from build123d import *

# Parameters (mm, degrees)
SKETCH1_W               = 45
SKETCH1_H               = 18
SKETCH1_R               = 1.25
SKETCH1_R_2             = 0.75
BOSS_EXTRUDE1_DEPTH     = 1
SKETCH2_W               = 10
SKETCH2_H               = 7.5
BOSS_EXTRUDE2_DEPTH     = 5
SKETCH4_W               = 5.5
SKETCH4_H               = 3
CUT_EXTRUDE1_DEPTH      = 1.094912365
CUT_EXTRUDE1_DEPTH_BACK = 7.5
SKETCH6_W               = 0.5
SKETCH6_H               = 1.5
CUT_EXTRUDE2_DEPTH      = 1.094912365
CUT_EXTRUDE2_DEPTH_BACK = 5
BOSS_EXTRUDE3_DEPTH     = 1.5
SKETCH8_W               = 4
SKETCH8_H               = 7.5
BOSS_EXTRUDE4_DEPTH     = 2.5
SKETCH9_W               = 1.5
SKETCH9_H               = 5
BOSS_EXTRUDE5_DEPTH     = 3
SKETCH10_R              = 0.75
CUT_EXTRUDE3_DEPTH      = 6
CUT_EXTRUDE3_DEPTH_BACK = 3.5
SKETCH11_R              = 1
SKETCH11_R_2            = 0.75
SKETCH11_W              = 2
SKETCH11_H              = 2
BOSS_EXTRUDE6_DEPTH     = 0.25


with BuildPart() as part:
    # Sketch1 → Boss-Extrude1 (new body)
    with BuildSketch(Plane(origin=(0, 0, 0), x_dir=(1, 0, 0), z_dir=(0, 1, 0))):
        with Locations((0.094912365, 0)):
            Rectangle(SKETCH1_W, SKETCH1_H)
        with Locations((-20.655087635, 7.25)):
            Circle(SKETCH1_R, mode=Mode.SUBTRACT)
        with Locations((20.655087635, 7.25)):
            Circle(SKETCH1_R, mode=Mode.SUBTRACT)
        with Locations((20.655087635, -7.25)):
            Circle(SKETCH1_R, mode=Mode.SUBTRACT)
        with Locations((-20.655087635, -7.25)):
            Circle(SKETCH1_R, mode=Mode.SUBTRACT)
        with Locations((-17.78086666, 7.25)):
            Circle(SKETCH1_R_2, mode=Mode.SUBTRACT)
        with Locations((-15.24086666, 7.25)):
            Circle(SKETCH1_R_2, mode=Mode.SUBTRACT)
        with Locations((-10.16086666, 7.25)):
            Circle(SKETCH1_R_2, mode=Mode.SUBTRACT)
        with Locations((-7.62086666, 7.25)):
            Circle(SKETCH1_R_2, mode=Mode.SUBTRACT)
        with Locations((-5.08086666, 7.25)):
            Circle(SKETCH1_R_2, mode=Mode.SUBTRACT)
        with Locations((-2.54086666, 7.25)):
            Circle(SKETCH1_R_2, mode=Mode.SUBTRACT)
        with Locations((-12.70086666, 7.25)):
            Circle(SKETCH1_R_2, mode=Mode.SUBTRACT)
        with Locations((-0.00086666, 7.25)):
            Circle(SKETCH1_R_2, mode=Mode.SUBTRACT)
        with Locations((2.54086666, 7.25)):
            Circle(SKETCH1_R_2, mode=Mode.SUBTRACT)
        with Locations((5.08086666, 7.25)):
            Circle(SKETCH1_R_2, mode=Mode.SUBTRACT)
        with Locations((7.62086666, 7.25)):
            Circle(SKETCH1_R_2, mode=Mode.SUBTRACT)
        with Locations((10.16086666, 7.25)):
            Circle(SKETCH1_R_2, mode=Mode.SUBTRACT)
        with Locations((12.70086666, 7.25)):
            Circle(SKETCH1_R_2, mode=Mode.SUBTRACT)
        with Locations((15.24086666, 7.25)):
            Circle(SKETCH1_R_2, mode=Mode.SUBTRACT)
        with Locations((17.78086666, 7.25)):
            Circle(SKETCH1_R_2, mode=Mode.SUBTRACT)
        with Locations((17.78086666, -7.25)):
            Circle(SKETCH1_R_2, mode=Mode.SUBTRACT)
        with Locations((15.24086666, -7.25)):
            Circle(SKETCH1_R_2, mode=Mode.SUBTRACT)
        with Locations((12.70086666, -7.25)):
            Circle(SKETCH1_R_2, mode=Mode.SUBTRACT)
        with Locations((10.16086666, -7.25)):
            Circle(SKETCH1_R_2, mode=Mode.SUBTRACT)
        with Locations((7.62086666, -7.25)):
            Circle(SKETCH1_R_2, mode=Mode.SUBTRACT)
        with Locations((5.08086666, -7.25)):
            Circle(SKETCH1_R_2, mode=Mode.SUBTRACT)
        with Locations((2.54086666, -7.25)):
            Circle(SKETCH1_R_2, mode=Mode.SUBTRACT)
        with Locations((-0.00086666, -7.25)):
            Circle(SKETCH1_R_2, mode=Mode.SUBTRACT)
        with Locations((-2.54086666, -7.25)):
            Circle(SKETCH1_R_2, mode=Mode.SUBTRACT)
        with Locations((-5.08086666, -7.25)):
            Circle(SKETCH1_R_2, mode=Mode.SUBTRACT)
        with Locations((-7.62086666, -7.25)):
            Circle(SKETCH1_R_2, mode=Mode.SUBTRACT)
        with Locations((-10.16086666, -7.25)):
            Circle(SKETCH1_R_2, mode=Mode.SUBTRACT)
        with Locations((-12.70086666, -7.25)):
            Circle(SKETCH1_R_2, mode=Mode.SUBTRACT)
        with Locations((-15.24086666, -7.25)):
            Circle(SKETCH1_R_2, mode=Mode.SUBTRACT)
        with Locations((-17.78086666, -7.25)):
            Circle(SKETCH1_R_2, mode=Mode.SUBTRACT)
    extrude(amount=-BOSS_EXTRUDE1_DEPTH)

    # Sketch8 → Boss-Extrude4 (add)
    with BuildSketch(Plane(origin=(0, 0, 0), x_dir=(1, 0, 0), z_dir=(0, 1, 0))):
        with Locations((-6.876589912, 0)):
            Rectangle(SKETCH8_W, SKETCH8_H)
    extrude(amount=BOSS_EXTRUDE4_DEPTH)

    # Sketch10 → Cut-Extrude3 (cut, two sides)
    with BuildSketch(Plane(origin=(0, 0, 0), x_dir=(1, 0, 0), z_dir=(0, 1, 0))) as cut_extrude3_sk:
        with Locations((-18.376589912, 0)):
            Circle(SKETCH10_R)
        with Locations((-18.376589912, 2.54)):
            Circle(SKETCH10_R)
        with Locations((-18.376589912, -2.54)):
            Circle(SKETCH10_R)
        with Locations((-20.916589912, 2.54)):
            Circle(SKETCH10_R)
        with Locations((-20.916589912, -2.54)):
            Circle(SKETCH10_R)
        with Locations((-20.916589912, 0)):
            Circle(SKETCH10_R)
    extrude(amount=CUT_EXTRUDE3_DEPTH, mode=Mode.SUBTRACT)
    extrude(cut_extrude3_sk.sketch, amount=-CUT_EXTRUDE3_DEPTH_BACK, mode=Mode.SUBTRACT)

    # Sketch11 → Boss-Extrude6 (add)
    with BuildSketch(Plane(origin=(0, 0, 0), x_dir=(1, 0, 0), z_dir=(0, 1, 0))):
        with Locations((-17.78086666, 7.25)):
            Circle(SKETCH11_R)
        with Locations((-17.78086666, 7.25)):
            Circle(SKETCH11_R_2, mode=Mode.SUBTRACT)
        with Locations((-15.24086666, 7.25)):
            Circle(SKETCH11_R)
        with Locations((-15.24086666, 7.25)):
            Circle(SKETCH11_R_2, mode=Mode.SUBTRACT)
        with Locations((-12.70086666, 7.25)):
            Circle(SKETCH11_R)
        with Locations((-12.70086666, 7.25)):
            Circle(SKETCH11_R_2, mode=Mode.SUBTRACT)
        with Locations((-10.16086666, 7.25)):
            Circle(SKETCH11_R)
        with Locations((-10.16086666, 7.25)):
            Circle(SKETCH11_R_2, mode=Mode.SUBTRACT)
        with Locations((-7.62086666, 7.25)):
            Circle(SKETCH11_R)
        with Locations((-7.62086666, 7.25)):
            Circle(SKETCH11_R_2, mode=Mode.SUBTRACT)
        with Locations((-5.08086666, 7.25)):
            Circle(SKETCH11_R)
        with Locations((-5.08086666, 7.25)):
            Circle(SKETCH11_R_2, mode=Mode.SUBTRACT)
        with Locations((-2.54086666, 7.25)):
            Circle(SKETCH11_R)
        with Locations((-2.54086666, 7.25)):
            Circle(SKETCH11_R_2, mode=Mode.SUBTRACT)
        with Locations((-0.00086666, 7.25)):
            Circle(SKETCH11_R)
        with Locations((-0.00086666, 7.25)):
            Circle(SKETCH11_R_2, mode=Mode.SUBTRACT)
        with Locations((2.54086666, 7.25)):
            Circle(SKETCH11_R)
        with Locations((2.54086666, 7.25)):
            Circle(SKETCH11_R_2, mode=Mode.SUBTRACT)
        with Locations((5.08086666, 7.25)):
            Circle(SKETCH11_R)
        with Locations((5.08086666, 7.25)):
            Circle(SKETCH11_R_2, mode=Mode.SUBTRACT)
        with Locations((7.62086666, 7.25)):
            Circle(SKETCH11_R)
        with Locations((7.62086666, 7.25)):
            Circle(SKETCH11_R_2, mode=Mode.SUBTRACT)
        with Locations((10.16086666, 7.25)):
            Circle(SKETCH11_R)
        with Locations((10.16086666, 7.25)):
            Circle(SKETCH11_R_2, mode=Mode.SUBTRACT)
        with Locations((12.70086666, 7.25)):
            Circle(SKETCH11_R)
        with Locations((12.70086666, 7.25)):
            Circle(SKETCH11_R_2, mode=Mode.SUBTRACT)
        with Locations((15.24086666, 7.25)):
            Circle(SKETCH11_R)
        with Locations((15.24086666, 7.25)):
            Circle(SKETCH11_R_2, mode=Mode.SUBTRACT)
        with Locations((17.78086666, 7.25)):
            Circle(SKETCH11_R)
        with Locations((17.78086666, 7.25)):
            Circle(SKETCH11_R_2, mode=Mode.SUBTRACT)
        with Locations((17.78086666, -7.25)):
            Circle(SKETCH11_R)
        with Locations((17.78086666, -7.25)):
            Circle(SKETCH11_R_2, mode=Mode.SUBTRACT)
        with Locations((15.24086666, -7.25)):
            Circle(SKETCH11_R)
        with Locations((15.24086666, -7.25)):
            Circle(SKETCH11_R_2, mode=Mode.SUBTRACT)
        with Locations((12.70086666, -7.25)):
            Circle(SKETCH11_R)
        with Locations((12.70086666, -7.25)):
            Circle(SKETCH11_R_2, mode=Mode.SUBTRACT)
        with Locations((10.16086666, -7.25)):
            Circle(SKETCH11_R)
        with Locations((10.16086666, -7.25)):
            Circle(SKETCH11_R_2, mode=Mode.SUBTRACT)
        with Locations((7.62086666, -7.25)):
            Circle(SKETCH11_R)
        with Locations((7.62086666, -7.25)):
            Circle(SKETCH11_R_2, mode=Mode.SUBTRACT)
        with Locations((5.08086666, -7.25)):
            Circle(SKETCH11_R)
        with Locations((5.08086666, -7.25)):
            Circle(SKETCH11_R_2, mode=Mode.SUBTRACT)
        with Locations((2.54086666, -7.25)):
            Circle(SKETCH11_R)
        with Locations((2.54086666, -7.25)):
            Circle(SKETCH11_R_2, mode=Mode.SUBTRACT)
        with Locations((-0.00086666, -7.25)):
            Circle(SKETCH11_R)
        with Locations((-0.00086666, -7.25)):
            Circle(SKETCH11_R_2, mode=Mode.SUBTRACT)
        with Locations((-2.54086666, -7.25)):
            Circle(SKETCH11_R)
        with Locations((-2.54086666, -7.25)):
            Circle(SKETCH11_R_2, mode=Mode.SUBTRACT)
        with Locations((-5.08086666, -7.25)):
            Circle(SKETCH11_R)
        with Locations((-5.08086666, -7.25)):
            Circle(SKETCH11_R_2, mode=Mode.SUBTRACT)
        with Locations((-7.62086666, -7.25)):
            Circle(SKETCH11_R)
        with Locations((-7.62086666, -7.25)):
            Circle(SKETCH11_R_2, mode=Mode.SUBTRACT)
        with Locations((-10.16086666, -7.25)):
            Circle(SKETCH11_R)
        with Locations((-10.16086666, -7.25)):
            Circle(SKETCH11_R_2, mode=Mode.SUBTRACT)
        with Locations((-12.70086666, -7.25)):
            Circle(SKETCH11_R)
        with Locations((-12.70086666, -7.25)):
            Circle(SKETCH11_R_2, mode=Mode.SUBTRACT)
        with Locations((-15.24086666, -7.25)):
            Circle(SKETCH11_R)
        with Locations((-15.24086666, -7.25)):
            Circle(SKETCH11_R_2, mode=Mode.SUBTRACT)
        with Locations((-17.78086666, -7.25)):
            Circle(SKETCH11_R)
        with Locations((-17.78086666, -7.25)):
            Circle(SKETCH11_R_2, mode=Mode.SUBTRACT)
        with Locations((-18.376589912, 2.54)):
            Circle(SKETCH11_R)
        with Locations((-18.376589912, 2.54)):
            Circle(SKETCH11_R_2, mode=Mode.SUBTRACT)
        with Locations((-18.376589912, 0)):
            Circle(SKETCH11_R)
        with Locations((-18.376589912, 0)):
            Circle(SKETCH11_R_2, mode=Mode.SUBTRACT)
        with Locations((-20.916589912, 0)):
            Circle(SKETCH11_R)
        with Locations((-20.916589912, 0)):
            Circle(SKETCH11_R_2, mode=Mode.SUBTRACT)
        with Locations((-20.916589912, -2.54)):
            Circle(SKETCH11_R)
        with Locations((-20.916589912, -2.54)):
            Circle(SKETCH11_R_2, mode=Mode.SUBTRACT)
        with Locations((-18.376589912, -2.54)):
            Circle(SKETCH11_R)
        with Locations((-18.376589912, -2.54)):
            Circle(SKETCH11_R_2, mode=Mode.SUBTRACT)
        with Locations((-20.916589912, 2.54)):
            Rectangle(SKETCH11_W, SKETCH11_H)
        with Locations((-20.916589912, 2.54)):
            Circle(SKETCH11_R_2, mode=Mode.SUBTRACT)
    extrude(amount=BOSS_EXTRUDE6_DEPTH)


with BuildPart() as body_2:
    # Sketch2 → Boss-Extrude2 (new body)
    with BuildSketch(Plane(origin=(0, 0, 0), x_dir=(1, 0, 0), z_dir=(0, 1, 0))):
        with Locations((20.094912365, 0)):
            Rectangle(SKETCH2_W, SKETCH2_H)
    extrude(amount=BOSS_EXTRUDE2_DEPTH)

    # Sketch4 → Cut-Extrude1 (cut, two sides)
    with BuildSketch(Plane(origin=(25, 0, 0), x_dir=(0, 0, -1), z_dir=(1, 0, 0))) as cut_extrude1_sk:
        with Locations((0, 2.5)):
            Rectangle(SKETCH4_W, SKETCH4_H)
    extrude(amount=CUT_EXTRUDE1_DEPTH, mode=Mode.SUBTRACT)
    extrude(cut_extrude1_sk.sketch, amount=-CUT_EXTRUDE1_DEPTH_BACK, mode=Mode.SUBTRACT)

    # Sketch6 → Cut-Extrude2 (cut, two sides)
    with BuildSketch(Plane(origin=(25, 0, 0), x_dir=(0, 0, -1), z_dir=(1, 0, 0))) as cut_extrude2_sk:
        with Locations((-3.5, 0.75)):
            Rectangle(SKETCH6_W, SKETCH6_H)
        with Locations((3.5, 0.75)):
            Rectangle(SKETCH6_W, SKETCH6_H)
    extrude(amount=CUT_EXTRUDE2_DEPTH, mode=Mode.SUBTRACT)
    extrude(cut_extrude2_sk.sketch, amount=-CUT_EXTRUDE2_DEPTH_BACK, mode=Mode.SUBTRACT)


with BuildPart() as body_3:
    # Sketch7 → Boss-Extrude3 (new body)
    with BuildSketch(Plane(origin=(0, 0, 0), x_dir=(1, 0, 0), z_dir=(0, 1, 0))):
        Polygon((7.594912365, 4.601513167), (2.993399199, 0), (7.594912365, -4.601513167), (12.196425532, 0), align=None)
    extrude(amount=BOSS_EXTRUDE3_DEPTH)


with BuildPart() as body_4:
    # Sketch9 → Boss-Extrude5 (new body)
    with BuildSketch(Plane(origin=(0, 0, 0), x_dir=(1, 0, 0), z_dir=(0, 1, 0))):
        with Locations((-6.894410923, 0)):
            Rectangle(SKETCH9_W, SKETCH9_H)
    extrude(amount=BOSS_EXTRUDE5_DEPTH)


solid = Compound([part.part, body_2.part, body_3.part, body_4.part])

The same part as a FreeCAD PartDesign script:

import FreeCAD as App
import Part
import Sketcher


def add_polygon(sketch, points):
    """Adds a closed chain of lines whose ends are joined by coincident constraints."""
    first, n = sketch.GeometryCount, len(points)
    for a, b in zip(points, points[1:] + points[:1]):
        sketch.addGeometry(Part.LineSegment(App.Vector(*a, 0), App.Vector(*b, 0)), False)
    for i in range(n):
        sketch.addConstraint(Sketcher.Constraint("Coincident", first + i, 2, first + (i + 1) % n, 1))

doc = App.newDocument("Part")
body = doc.addObject("PartDesign::Body", "Body")

sketch1 = body.newObject("Sketcher::SketchObject", "Sketch")
sketch1.AttachmentSupport = (doc.getObject("XZ_Plane"), [""])
sketch1.MapMode = "FlatFace"
add_polygon(sketch1, [(-22.405088, -9), (-22.405088, 9), (22.594912, 9), (22.594912, -9)])
sketch1.addGeometry(Part.Circle(App.Vector(-20.655088, 7.25, 0), App.Vector(0, 0, 1), 1.25), False)
sketch1.addGeometry(Part.Circle(App.Vector(-17.780867, 7.25, 0), App.Vector(0, 0, 1), 0.75), False)
sketch1.addGeometry(Part.Circle(App.Vector(-15.240867, 7.25, 0), App.Vector(0, 0, 1), 0.75), False)
sketch1.addGeometry(Part.Circle(App.Vector(-12.700867, 7.25, 0), App.Vector(0, 0, 1), 0.75), False)
sketch1.addGeometry(Part.Circle(App.Vector(-10.160867, 7.25, 0), App.Vector(0, 0, 1), 0.75), False)
sketch1.addGeometry(Part.Circle(App.Vector(-7.620867, 7.25, 0), App.Vector(0, 0, 1), 0.75), False)
sketch1.addGeometry(Part.Circle(App.Vector(-5.080867, 7.25, 0), App.Vector(0, 0, 1), 0.75), False)
sketch1.addGeometry(Part.Circle(App.Vector(-2.540867, 7.25, 0), App.Vector(0, 0, 1), 0.75), False)
sketch1.addGeometry(Part.Circle(App.Vector(-0.000867, 7.25, 0), App.Vector(0, 0, 1), 0.75), False)
sketch1.addGeometry(Part.Circle(App.Vector(2.540867, 7.25, 0), App.Vector(0, 0, 1), 0.75), False)
sketch1.addGeometry(Part.Circle(App.Vector(5.080867, 7.25, 0), App.Vector(0, 0, 1), 0.75), False)
sketch1.addGeometry(Part.Circle(App.Vector(7.620867, 7.25, 0), App.Vector(0, 0, 1), 0.75), False)
sketch1.addGeometry(Part.Circle(App.Vector(10.160867, 7.25, 0), App.Vector(0, 0, 1), 0.75), False)
sketch1.addGeometry(Part.Circle(App.Vector(12.700867, 7.25, 0), App.Vector(0, 0, 1), 0.75), False)
sketch1.addGeometry(Part.Circle(App.Vector(15.240867, 7.25, 0), App.Vector(0, 0, 1), 0.75), False)
sketch1.addGeometry(Part.Circle(App.Vector(17.780867, 7.25, 0), App.Vector(0, 0, 1), 0.75), False)
sketch1.addGeometry(Part.Circle(App.Vector(20.655088, 7.25, 0), App.Vector(0, 0, 1), 1.25), False)
sketch1.addGeometry(Part.Circle(App.Vector(-20.655088, -7.25, 0), App.Vector(0, 0, 1), 1.25), False)
sketch1.addGeometry(Part.Circle(App.Vector(-17.780867, -7.25, 0), App.Vector(0, 0, 1), 0.75), False)
sketch1.addGeometry(Part.Circle(App.Vector(-15.240867, -7.25, 0), App.Vector(0, 0, 1), 0.75), False)
sketch1.addGeometry(Part.Circle(App.Vector(-12.700867, -7.25, 0), App.Vector(0, 0, 1), 0.75), False)
sketch1.addGeometry(Part.Circle(App.Vector(-10.160867, -7.25, 0), App.Vector(0, 0, 1), 0.75), False)
sketch1.addGeometry(Part.Circle(App.Vector(-7.620867, -7.25, 0), App.Vector(0, 0, 1), 0.75), False)
sketch1.addGeometry(Part.Circle(App.Vector(-5.080867, -7.25, 0), App.Vector(0, 0, 1), 0.75), False)
sketch1.addGeometry(Part.Circle(App.Vector(-2.540867, -7.25, 0), App.Vector(0, 0, 1), 0.75), False)
sketch1.addGeometry(Part.Circle(App.Vector(-0.000867, -7.25, 0), App.Vector(0, 0, 1), 0.75), False)
sketch1.addGeometry(Part.Circle(App.Vector(2.540867, -7.25, 0), App.Vector(0, 0, 1), 0.75), False)
sketch1.addGeometry(Part.Circle(App.Vector(5.080867, -7.25, 0), App.Vector(0, 0, 1), 0.75), False)
sketch1.addGeometry(Part.Circle(App.Vector(7.620867, -7.25, 0), App.Vector(0, 0, 1), 0.75), False)
sketch1.addGeometry(Part.Circle(App.Vector(10.160867, -7.25, 0), App.Vector(0, 0, 1), 0.75), False)
sketch1.addGeometry(Part.Circle(App.Vector(12.700867, -7.25, 0), App.Vector(0, 0, 1), 0.75), False)
sketch1.addGeometry(Part.Circle(App.Vector(15.240867, -7.25, 0), App.Vector(0, 0, 1), 0.75), False)
sketch1.addGeometry(Part.Circle(App.Vector(17.780867, -7.25, 0), App.Vector(0, 0, 1), 0.75), False)
sketch1.addGeometry(Part.Circle(App.Vector(20.655088, -7.25, 0), App.Vector(0, 0, 1), 1.25), False)
sketch1.addConstraint(Sketcher.Constraint("Vertical", 0))
sketch1.addConstraint(Sketcher.Constraint("Horizontal", 1))
sketch1.addConstraint(Sketcher.Constraint("Vertical", 2))
sketch1.addConstraint(Sketcher.Constraint("Horizontal", 3))
sketch1.addConstraint(Sketcher.Constraint("Equal", 5, 6))
sketch1.addConstraint(Sketcher.Constraint("Equal", 6, 7))
sketch1.addConstraint(Sketcher.Constraint("Equal", 7, 8))
sketch1.addConstraint(Sketcher.Constraint("Equal", 8, 9))
sketch1.addConstraint(Sketcher.Constraint("Equal", 9, 10))
sketch1.addConstraint(Sketcher.Constraint("Equal", 10, 11))
sketch1.addConstraint(Sketcher.Constraint("Equal", 11, 12))
sketch1.addConstraint(Sketcher.Constraint("Equal", 12, 13))
sketch1.addConstraint(Sketcher.Constraint("Equal", 13, 14))
sketch1.addConstraint(Sketcher.Constraint("Equal", 14, 15))
sketch1.addConstraint(Sketcher.Constraint("Equal", 15, 16))
sketch1.addConstraint(Sketcher.Constraint("Equal", 16, 17))
sketch1.addConstraint(Sketcher.Constraint("Equal", 17, 18))
sketch1.addConstraint(Sketcher.Constraint("Equal", 18, 19))
sketch1.addConstraint(Sketcher.Constraint("Equal", 4, 20))
sketch1.addConstraint(Sketcher.Constraint("Equal", 20, 21))
sketch1.addConstraint(Sketcher.Constraint("Equal", 19, 22))
sketch1.addConstraint(Sketcher.Constraint("Equal", 22, 23))
sketch1.addConstraint(Sketcher.Constraint("Equal", 23, 24))
sketch1.addConstraint(Sketcher.Constraint("Equal", 24, 25))
sketch1.addConstraint(Sketcher.Constraint("Equal", 25, 26))
sketch1.addConstraint(Sketcher.Constraint("Equal", 26, 27))
sketch1.addConstraint(Sketcher.Constraint("Equal", 27, 28))
sketch1.addConstraint(Sketcher.Constraint("Equal", 28, 29))
sketch1.addConstraint(Sketcher.Constraint("Equal", 29, 30))
sketch1.addConstraint(Sketcher.Constraint("Equal", 30, 31))
sketch1.addConstraint(Sketcher.Constraint("Equal", 31, 32))
sketch1.addConstraint(Sketcher.Constraint("Equal", 32, 33))
sketch1.addConstraint(Sketcher.Constraint("Equal", 33, 34))
sketch1.addConstraint(Sketcher.Constraint("Equal", 34, 35))
sketch1.addConstraint(Sketcher.Constraint("Equal", 35, 36))
sketch1.addConstraint(Sketcher.Constraint("Equal", 21, 37))
sketch1.addConstraint(Sketcher.Constraint("Symmetric", 20, 3, 21, 3, -1, 1))
sketch1.addConstraint(Sketcher.Constraint("Symmetric", 19, 3, 22, 3, -1, 1))
sketch1.addConstraint(Sketcher.Constraint("Symmetric", 18, 3, 23, 3, -1, 1))
sketch1.addConstraint(Sketcher.Constraint("Symmetric", 17, 3, 24, 3, -1, 1))
sketch1.addConstraint(Sketcher.Constraint("Symmetric", 16, 3, 25, 3, -1, 1))
sketch1.addConstraint(Sketcher.Constraint("Symmetric", 15, 3, 26, 3, -1, 1))
sketch1.addConstraint(Sketcher.Constraint("Symmetric", 14, 3, 27, 3, -1, 1))
sketch1.addConstraint(Sketcher.Constraint("Symmetric", 13, 3, 28, 3, -1, 1))
sketch1.addConstraint(Sketcher.Constraint("Symmetric", 11, 3, 30, 3, -1, 1))
sketch1.addConstraint(Sketcher.Constraint("Symmetric", 10, 3, 31, 3, -1, 1))
sketch1.addConstraint(Sketcher.Constraint("Symmetric", 9, 3, 32, 3, -1, 1))
sketch1.addConstraint(Sketcher.Constraint("Symmetric", 8, 3, 33, 3, -1, 1))
sketch1.addConstraint(Sketcher.Constraint("Symmetric", 7, 3, 34, 3, -1, 1))
sketch1.addConstraint(Sketcher.Constraint("Symmetric", 6, 3, 35, 3, -1, 1))
sketch1.addConstraint(Sketcher.Constraint("Symmetric", 5, 3, 36, 3, -1, 1))
sketch1.addConstraint(Sketcher.Constraint("Symmetric", 4, 3, 37, 3, -1, 1))
sketch1.addConstraint(Sketcher.Constraint("Symmetric", 11, 3, 13, 3, -2))
sketch1.addConstraint(Sketcher.Constraint("Symmetric", 10, 3, 14, 3, -2))
sketch1.addConstraint(Sketcher.Constraint("Symmetric", 9, 3, 15, 3, -2))
sketch1.addConstraint(Sketcher.Constraint("Symmetric", 8, 3, 16, 3, -2))
sketch1.addConstraint(Sketcher.Constraint("Symmetric", 7, 3, 17, 3, -2))
sketch1.addConstraint(Sketcher.Constraint("Symmetric", 6, 3, 18, 3, -2))
sketch1.addConstraint(Sketcher.Constraint("Symmetric", 5, 3, 19, 3, -2))
sketch1.addConstraint(Sketcher.Constraint("Symmetric", 4, 3, 20, 3, -2))
sketch1.addConstraint(Sketcher.Constraint("Symmetric", 12, 3, 29, 3, -1))
sketch1.addConstraint(Sketcher.Constraint("Horizontal", 4, 3, 5, 3))
sketch1.addConstraint(Sketcher.Constraint("Horizontal", 5, 3, 6, 3))
sketch1.addConstraint(Sketcher.Constraint("Horizontal", 6, 3, 7, 3))
sketch1.addConstraint(Sketcher.Constraint("Horizontal", 7, 3, 8, 3))
sketch1.addConstraint(Sketcher.Constraint("Horizontal", 8, 3, 9, 3))
sketch1.addConstraint(Sketcher.Constraint("Horizontal", 9, 3, 10, 3))
sketch1.addConstraint(Sketcher.Constraint("Horizontal", 10, 3, 11, 3))
sketch1.addConstraint(Sketcher.Constraint("Horizontal", 11, 3, 12, 3))
sketch1.addConstraint(Sketcher.Constraint("Diameter", 4, 2.5))
sketch1.addConstraint(Sketcher.Constraint("Diameter", 5, 1.5))
sketch1.addConstraint(Sketcher.Constraint("DistanceX", 1, 1, 1, 2, 45.0))
sketch1.addConstraint(Sketcher.Constraint("DistanceY", 0, 1, 0, 2, 18.0))
sketch1.addConstraint(Sketcher.Constraint("DistanceY", -1, 1, 0, 2, 9.0))
sketch1.addConstraint(Sketcher.Constraint("DistanceX", 5, 3, 10, 3, 12.7))
sketch1.addConstraint(Sketcher.Constraint("DistanceX", 6, 3, 11, 3, 12.7))
sketch1.addConstraint(Sketcher.Constraint("DistanceX", 7, 3, 12, 3, 12.7))
sketch1.addConstraint(Sketcher.Constraint("DistanceY", 21, 3, 4, 3, 14.5))
sketch1.addConstraint(Sketcher.Constraint("DistanceX", 5, 3, 6, 3, 2.54))
sketch1.addConstraint(Sketcher.Constraint("DistanceX", 6, 3, 7, 3, 2.54))
sketch1.addConstraint(Sketcher.Constraint("DistanceX", 7, 3, 8, 3, 2.54))
sketch1.addConstraint(Sketcher.Constraint("DistanceX", 8, 3, 9, 3, 2.54))
sketch1.addConstraint(Sketcher.Constraint("DistanceX", 0, 2, 4, 3, 1.75))
sketch1.addConstraint(Sketcher.Constraint("DistanceX", 4, 3, 5, 3, 2.874221))
sketch1.addConstraint(Sketcher.Constraint("DistanceX", 4, 3, -1, 1, 20.655088))
pad1 = body.newObject("PartDesign::Pad", "Pad")
pad1.Profile = sketch1
pad1.Length = 1

sketch2 = body.newObject("Sketcher::SketchObject", "Sketch001")
sketch2.AttachmentSupport = (doc.getObject("XZ_Plane"), [""])
sketch2.MapMode = "FlatFace"
add_polygon(sketch2, [(-8.87659, -3.75), (-8.87659, 3.75), (-4.87659, 3.75), (-4.87659, -3.75)])
sketch2.addConstraint(Sketcher.Constraint("Vertical", 0))
sketch2.addConstraint(Sketcher.Constraint("Horizontal", 1))
sketch2.addConstraint(Sketcher.Constraint("Vertical", 2))
sketch2.addConstraint(Sketcher.Constraint("Horizontal", 3))
sketch2.addConstraint(Sketcher.Constraint("DistanceX", 1, 1, 1, 2, 4.0))
sketch2.addConstraint(Sketcher.Constraint("DistanceY", 0, 1, 0, 2, 7.5))
sketch2.addConstraint(Sketcher.Constraint("DistanceY", -1, 1, 0, 2, 3.75))
sketch2.addConstraint(Sketcher.Constraint("DistanceX", 0, 2, -1, 1, 8.87659))
pad2 = body.newObject("PartDesign::Pad", "Pad001")
pad2.Profile = sketch2
pad2.Length = 2.5
pad2.Reversed = True

sketch3 = body.newObject("Sketcher::SketchObject", "Sketch002")
sketch3.AttachmentSupport = (doc.getObject("XZ_Plane"), [""])
sketch3.MapMode = "FlatFace"
sketch3.addGeometry(Part.Circle(App.Vector(-18.37659, 0, 0), App.Vector(0, 0, 1), 0.75), False)
sketch3.addGeometry(Part.Circle(App.Vector(-18.37659, -2.54, 0), App.Vector(0, 0, 1), 0.75), False)
sketch3.addGeometry(Part.Circle(App.Vector(-18.37659, 2.54, 0), App.Vector(0, 0, 1), 0.75), False)
sketch3.addGeometry(Part.Circle(App.Vector(-20.91659, -2.54, 0), App.Vector(0, 0, 1), 0.75), False)
sketch3.addGeometry(Part.Circle(App.Vector(-20.91659, 2.54, 0), App.Vector(0, 0, 1), 0.75), False)
sketch3.addGeometry(Part.Circle(App.Vector(-20.91659, 0, 0), App.Vector(0, 0, 1), 0.75), False)
sketch3.addConstraint(Sketcher.Constraint("Equal", 0, 1))
sketch3.addConstraint(Sketcher.Constraint("Equal", 1, 2))
sketch3.addConstraint(Sketcher.Constraint("Equal", 2, 3))
sketch3.addConstraint(Sketcher.Constraint("Equal", 3, 4))
sketch3.addConstraint(Sketcher.Constraint("Equal", 4, 5))
sketch3.addConstraint(Sketcher.Constraint("Symmetric", 1, 3, 2, 3, -1))
sketch3.addConstraint(Sketcher.Constraint("Symmetric", 3, 3, 4, 3, -1))
sketch3.addConstraint(Sketcher.Constraint("PointOnObject", 0, 3, -1))
sketch3.addConstraint(Sketcher.Constraint("PointOnObject", 5, 3, -1))
sketch3.addConstraint(Sketcher.Constraint("Horizontal", 1, 3, 3, 3))
sketch3.addConstraint(Sketcher.Constraint("Vertical", 0, 3, 1, 3))
sketch3.addConstraint(Sketcher.Constraint("Vertical", 4, 3, 5, 3))
sketch3.addConstraint(Sketcher.Constraint("Diameter", 0, 1.5))
sketch3.addConstraint(Sketcher.Constraint("DistanceY", 1, 3, -1, 1, 2.54))
sketch3.addConstraint(Sketcher.Constraint("DistanceX", 3, 3, 1, 3, 2.54))
sketch3.addConstraint(Sketcher.Constraint("DistanceX", 0, 3, -1, 1, 18.37659))
pocket1 = body.newObject("PartDesign::Pocket", "Pocket")
pocket1.Profile = sketch3
pocket1.Type = "ThroughAll"
pocket1.Midplane = True

sketch4 = body.newObject("Sketcher::SketchObject", "Sketch003")
sketch4.AttachmentSupport = (doc.getObject("XZ_Plane"), [""])
sketch4.MapMode = "FlatFace"
sketch4.addGeometry(Part.Circle(App.Vector(-17.780867, -7.25, 0), App.Vector(0, 0, 1), 1), False)
sketch4.addGeometry(Part.Circle(App.Vector(-17.780867, -7.25, 0), App.Vector(0, 0, 1), 0.75), False)
sketch4.addGeometry(Part.Circle(App.Vector(-15.240867, -7.25, 0), App.Vector(0, 0, 1), 1), False)
sketch4.addGeometry(Part.Circle(App.Vector(-15.240867, -7.25, 0), App.Vector(0, 0, 1), 0.75), False)
sketch4.addGeometry(Part.Circle(App.Vector(-12.700867, -7.25, 0), App.Vector(0, 0, 1), 1), False)
sketch4.addGeometry(Part.Circle(App.Vector(-12.700867, -7.25, 0), App.Vector(0, 0, 1), 0.75), False)
sketch4.addGeometry(Part.Circle(App.Vector(-10.160867, -7.25, 0), App.Vector(0, 0, 1), 1), False)
sketch4.addGeometry(Part.Circle(App.Vector(-10.160867, -7.25, 0), App.Vector(0, 0, 1), 0.75), False)
sketch4.addGeometry(Part.Circle(App.Vector(-7.620867, -7.25, 0), App.Vector(0, 0, 1), 1), False)
sketch4.addGeometry(Part.Circle(App.Vector(-7.620867, -7.25, 0), App.Vector(0, 0, 1), 0.75), False)
sketch4.addGeometry(Part.Circle(App.Vector(-5.080867, -7.25, 0), App.Vector(0, 0, 1), 1), False)
sketch4.addGeometry(Part.Circle(App.Vector(-5.080867, -7.25, 0), App.Vector(0, 0, 1), 0.75), False)
sketch4.addGeometry(Part.Circle(App.Vector(-2.540867, -7.25, 0), App.Vector(0, 0, 1), 1), False)
sketch4.addGeometry(Part.Circle(App.Vector(-2.540867, -7.25, 0), App.Vector(0, 0, 1), 0.75), False)
sketch4.addGeometry(Part.Circle(App.Vector(-0.000867, -7.25, 0), App.Vector(0, 0, 1), 1), False)
sketch4.addGeometry(Part.Circle(App.Vector(-0.000867, -7.25, 0), App.Vector(0, 0, 1), 0.75), False)
sketch4.addGeometry(Part.Circle(App.Vector(2.540867, -7.25, 0), App.Vector(0, 0, 1), 1), False)
sketch4.addGeometry(Part.Circle(App.Vector(2.540867, -7.25, 0), App.Vector(0, 0, 1), 0.75), False)
sketch4.addGeometry(Part.Circle(App.Vector(5.080867, -7.25, 0), App.Vector(0, 0, 1), 1), False)
sketch4.addGeometry(Part.Circle(App.Vector(5.080867, -7.25, 0), App.Vector(0, 0, 1), 0.75), False)
sketch4.addGeometry(Part.Circle(App.Vector(7.620867, -7.25, 0), App.Vector(0, 0, 1), 1), False)
sketch4.addGeometry(Part.Circle(App.Vector(7.620867, -7.25, 0), App.Vector(0, 0, 1), 0.75), False)
sketch4.addGeometry(Part.Circle(App.Vector(10.160867, -7.25, 0), App.Vector(0, 0, 1), 1), False)
sketch4.addGeometry(Part.Circle(App.Vector(10.160867, -7.25, 0), App.Vector(0, 0, 1), 0.75), False)
sketch4.addGeometry(Part.Circle(App.Vector(12.700867, -7.25, 0), App.Vector(0, 0, 1), 1), False)
sketch4.addGeometry(Part.Circle(App.Vector(12.700867, -7.25, 0), App.Vector(0, 0, 1), 0.75), False)
sketch4.addGeometry(Part.Circle(App.Vector(15.240867, -7.25, 0), App.Vector(0, 0, 1), 1), False)
sketch4.addGeometry(Part.Circle(App.Vector(15.240867, -7.25, 0), App.Vector(0, 0, 1), 0.75), False)
sketch4.addGeometry(Part.Circle(App.Vector(17.780867, -7.25, 0), App.Vector(0, 0, 1), 1), False)
sketch4.addGeometry(Part.Circle(App.Vector(17.780867, -7.25, 0), App.Vector(0, 0, 1), 0.75), False)
sketch4.addGeometry(Part.Circle(App.Vector(17.780867, 7.25, 0), App.Vector(0, 0, 1), 1), False)
sketch4.addGeometry(Part.Circle(App.Vector(17.780867, 7.25, 0), App.Vector(0, 0, 1), 0.75), False)
sketch4.addGeometry(Part.Circle(App.Vector(15.240867, 7.25, 0), App.Vector(0, 0, 1), 1), False)
sketch4.addGeometry(Part.Circle(App.Vector(15.240867, 7.25, 0), App.Vector(0, 0, 1), 0.75), False)
sketch4.addGeometry(Part.Circle(App.Vector(12.700867, 7.25, 0), App.Vector(0, 0, 1), 1), False)
sketch4.addGeometry(Part.Circle(App.Vector(12.700867, 7.25, 0), App.Vector(0, 0, 1), 0.75), False)
sketch4.addGeometry(Part.Circle(App.Vector(10.160867, 7.25, 0), App.Vector(0, 0, 1), 1), False)
sketch4.addGeometry(Part.Circle(App.Vector(10.160867, 7.25, 0), App.Vector(0, 0, 1), 0.75), False)
sketch4.addGeometry(Part.Circle(App.Vector(7.620867, 7.25, 0), App.Vector(0, 0, 1), 1), False)
sketch4.addGeometry(Part.Circle(App.Vector(7.620867, 7.25, 0), App.Vector(0, 0, 1), 0.75), False)
sketch4.addGeometry(Part.Circle(App.Vector(5.080867, 7.25, 0), App.Vector(0, 0, 1), 1), False)
sketch4.addGeometry(Part.Circle(App.Vector(5.080867, 7.25, 0), App.Vector(0, 0, 1), 0.75), False)
sketch4.addGeometry(Part.Circle(App.Vector(2.540867, 7.25, 0), App.Vector(0, 0, 1), 1), False)
sketch4.addGeometry(Part.Circle(App.Vector(2.540867, 7.25, 0), App.Vector(0, 0, 1), 0.75), False)
sketch4.addGeometry(Part.Circle(App.Vector(-0.000867, 7.25, 0), App.Vector(0, 0, 1), 1), False)
sketch4.addGeometry(Part.Circle(App.Vector(-0.000867, 7.25, 0), App.Vector(0, 0, 1), 0.75), False)
sketch4.addGeometry(Part.Circle(App.Vector(-2.540867, 7.25, 0), App.Vector(0, 0, 1), 1), False)
sketch4.addGeometry(Part.Circle(App.Vector(-2.540867, 7.25, 0), App.Vector(0, 0, 1), 0.75), False)
sketch4.addGeometry(Part.Circle(App.Vector(-5.080867, 7.25, 0), App.Vector(0, 0, 1), 1), False)
sketch4.addGeometry(Part.Circle(App.Vector(-5.080867, 7.25, 0), App.Vector(0, 0, 1), 0.75), False)
sketch4.addGeometry(Part.Circle(App.Vector(-7.620867, 7.25, 0), App.Vector(0, 0, 1), 1), False)
sketch4.addGeometry(Part.Circle(App.Vector(-7.620867, 7.25, 0), App.Vector(0, 0, 1), 0.75), False)
sketch4.addGeometry(Part.Circle(App.Vector(-10.160867, 7.25, 0), App.Vector(0, 0, 1), 1), False)
sketch4.addGeometry(Part.Circle(App.Vector(-10.160867, 7.25, 0), App.Vector(0, 0, 1), 0.75), False)
sketch4.addGeometry(Part.Circle(App.Vector(-12.700867, 7.25, 0), App.Vector(0, 0, 1), 1), False)
sketch4.addGeometry(Part.Circle(App.Vector(-12.700867, 7.25, 0), App.Vector(0, 0, 1), 0.75), False)
sketch4.addGeometry(Part.Circle(App.Vector(-15.240867, 7.25, 0), App.Vector(0, 0, 1), 1), False)
sketch4.addGeometry(Part.Circle(App.Vector(-15.240867, 7.25, 0), App.Vector(0, 0, 1), 0.75), False)
sketch4.addGeometry(Part.Circle(App.Vector(-17.780867, 7.25, 0), App.Vector(0, 0, 1), 1), False)
sketch4.addGeometry(Part.Circle(App.Vector(-17.780867, 7.25, 0), App.Vector(0, 0, 1), 0.75), False)
sketch4.addGeometry(Part.Circle(App.Vector(-18.37659, -2.54, 0), App.Vector(0, 0, 1), 1), False)
sketch4.addGeometry(Part.Circle(App.Vector(-18.37659, -2.54, 0), App.Vector(0, 0, 1), 0.75), False)
sketch4.addGeometry(Part.Circle(App.Vector(-18.37659, 0, 0), App.Vector(0, 0, 1), 1), False)
sketch4.addGeometry(Part.Circle(App.Vector(-18.37659, 0, 0), App.Vector(0, 0, 1), 0.75), False)
sketch4.addGeometry(Part.Circle(App.Vector(-20.91659, 0, 0), App.Vector(0, 0, 1), 1), False)
sketch4.addGeometry(Part.Circle(App.Vector(-20.91659, 0, 0), App.Vector(0, 0, 1), 0.75), False)
sketch4.addGeometry(Part.Circle(App.Vector(-20.91659, 2.54, 0), App.Vector(0, 0, 1), 1), False)
sketch4.addGeometry(Part.Circle(App.Vector(-20.91659, 2.54, 0), App.Vector(0, 0, 1), 0.75), False)
sketch4.addGeometry(Part.Circle(App.Vector(-18.37659, 2.54, 0), App.Vector(0, 0, 1), 1), False)
sketch4.addGeometry(Part.Circle(App.Vector(-18.37659, 2.54, 0), App.Vector(0, 0, 1), 0.75), False)
add_polygon(sketch4, [(-21.91659, -3.54), (-21.91659, -1.54), (-19.91659, -1.54), (-19.91659, -3.54)])
sketch4.addGeometry(Part.Circle(App.Vector(-20.91659, -2.54, 0), App.Vector(0, 0, 1), 0.75), False)
sketch4.addConstraint(Sketcher.Constraint("Vertical", 70))
sketch4.addConstraint(Sketcher.Constraint("Horizontal", 71))
sketch4.addConstraint(Sketcher.Constraint("Vertical", 72))
sketch4.addConstraint(Sketcher.Constraint("Horizontal", 73))
sketch4.addConstraint(Sketcher.Constraint("Coincident", 1, 3, 0, 3))
sketch4.addConstraint(Sketcher.Constraint("Coincident", 3, 3, 2, 3))
sketch4.addConstraint(Sketcher.Constraint("Coincident", 5, 3, 4, 3))
sketch4.addConstraint(Sketcher.Constraint("Coincident", 7, 3, 6, 3))
sketch4.addConstraint(Sketcher.Constraint("Coincident", 9, 3, 8, 3))
sketch4.addConstraint(Sketcher.Constraint("Coincident", 11, 3, 10, 3))
sketch4.addConstraint(Sketcher.Constraint("Coincident", 13, 3, 12, 3))
sketch4.addConstraint(Sketcher.Constraint("Coincident", 15, 3, 14, 3))
sketch4.addConstraint(Sketcher.Constraint("Coincident", 17, 3, 16, 3))
sketch4.addConstraint(Sketcher.Constraint("Coincident", 19, 3, 18, 3))
sketch4.addConstraint(Sketcher.Constraint("Coincident", 21, 3, 20, 3))
sketch4.addConstraint(Sketcher.Constraint("Coincident", 23, 3, 22, 3))
sketch4.addConstraint(Sketcher.Constraint("Coincident", 25, 3, 24, 3))
sketch4.addConstraint(Sketcher.Constraint("Coincident", 27, 3, 26, 3))
sketch4.addConstraint(Sketcher.Constraint("Coincident", 29, 3, 28, 3))
sketch4.addConstraint(Sketcher.Constraint("Coincident", 31, 3, 30, 3))
sketch4.addConstraint(Sketcher.Constraint("Coincident", 33, 3, 32, 3))
sketch4.addConstraint(Sketcher.Constraint("Coincident", 35, 3, 34, 3))
sketch4.addConstraint(Sketcher.Constraint("Coincident", 37, 3, 36, 3))
sketch4.addConstraint(Sketcher.Constraint("Coincident", 39, 3, 38, 3))
sketch4.addConstraint(Sketcher.Constraint("Coincident", 41, 3, 40, 3))
sketch4.addConstraint(Sketcher.Constraint("Coincident", 43, 3, 42, 3))
sketch4.addConstraint(Sketcher.Constraint("Coincident", 45, 3, 44, 3))
sketch4.addConstraint(Sketcher.Constraint("Coincident", 47, 3, 46, 3))
sketch4.addConstraint(Sketcher.Constraint("Coincident", 49, 3, 48, 3))
sketch4.addConstraint(Sketcher.Constraint("Coincident", 51, 3, 50, 3))
sketch4.addConstraint(Sketcher.Constraint("Coincident", 53, 3, 52, 3))
sketch4.addConstraint(Sketcher.Constraint("Coincident", 55, 3, 54, 3))
sketch4.addConstraint(Sketcher.Constraint("Coincident", 57, 3, 56, 3))
sketch4.addConstraint(Sketcher.Constraint("Coincident", 59, 3, 58, 3))
sketch4.addConstraint(Sketcher.Constraint("Coincident", 61, 3, 60, 3))
sketch4.addConstraint(Sketcher.Constraint("Coincident", 63, 3, 62, 3))
sketch4.addConstraint(Sketcher.Constraint("Coincident", 65, 3, 64, 3))
sketch4.addConstraint(Sketcher.Constraint("Coincident", 67, 3, 66, 3))
sketch4.addConstraint(Sketcher.Constraint("Coincident", 69, 3, 68, 3))
sketch4.addConstraint(Sketcher.Constraint("Equal", 0, 2))
sketch4.addConstraint(Sketcher.Constraint("Equal", 1, 3))
sketch4.addConstraint(Sketcher.Constraint("Equal", 2, 4))
sketch4.addConstraint(Sketcher.Constraint("Equal", 3, 5))
sketch4.addConstraint(Sketcher.Constraint("Equal", 4, 6))
sketch4.addConstraint(Sketcher.Constraint("Equal", 5, 7))
sketch4.addConstraint(Sketcher.Constraint("Equal", 6, 8))
sketch4.addConstraint(Sketcher.Constraint("Equal", 7, 9))
sketch4.addConstraint(Sketcher.Constraint("Equal", 8, 10))
sketch4.addConstraint(Sketcher.Constraint("Equal", 9, 11))
sketch4.addConstraint(Sketcher.Constraint("Equal", 10, 12))
sketch4.addConstraint(Sketcher.Constraint("Equal", 11, 13))
sketch4.addConstraint(Sketcher.Constraint("Equal", 12, 14))
sketch4.addConstraint(Sketcher.Constraint("Equal", 13, 15))
sketch4.addConstraint(Sketcher.Constraint("Equal", 14, 16))
sketch4.addConstraint(Sketcher.Constraint("Equal", 15, 17))
sketch4.addConstraint(Sketcher.Constraint("Equal", 16, 18))
sketch4.addConstraint(Sketcher.Constraint("Equal", 17, 19))
sketch4.addConstraint(Sketcher.Constraint("Equal", 18, 20))
sketch4.addConstraint(Sketcher.Constraint("Equal", 19, 21))
sketch4.addConstraint(Sketcher.Constraint("Equal", 20, 22))
sketch4.addConstraint(Sketcher.Constraint("Equal", 21, 23))
sketch4.addConstraint(Sketcher.Constraint("Equal", 22, 24))
sketch4.addConstraint(Sketcher.Constraint("Equal", 23, 25))
sketch4.addConstraint(Sketcher.Constraint("Equal", 24, 26))
sketch4.addConstraint(Sketcher.Constraint("Equal", 25, 27))
sketch4.addConstraint(Sketcher.Constraint("Equal", 26, 28))
sketch4.addConstraint(Sketcher.Constraint("Equal", 27, 29))
sketch4.addConstraint(Sketcher.Constraint("Equal", 28, 30))
sketch4.addConstraint(Sketcher.Constraint("Equal", 29, 31))
sketch4.addConstraint(Sketcher.Constraint("Equal", 30, 32))
sketch4.addConstraint(Sketcher.Constraint("Equal", 31, 33))
sketch4.addConstraint(Sketcher.Constraint("Equal", 32, 34))
sketch4.addConstraint(Sketcher.Constraint("Equal", 33, 35))
sketch4.addConstraint(Sketcher.Constraint("Equal", 34, 36))
sketch4.addConstraint(Sketcher.Constraint("Equal", 35, 37))
sketch4.addConstraint(Sketcher.Constraint("Equal", 36, 38))
sketch4.addConstraint(Sketcher.Constraint("Equal", 37, 39))
sketch4.addConstraint(Sketcher.Constraint("Equal", 38, 40))
sketch4.addConstraint(Sketcher.Constraint("Equal", 39, 41))
sketch4.addConstraint(Sketcher.Constraint("Equal", 40, 42))
sketch4.addConstraint(Sketcher.Constraint("Equal", 41, 43))
sketch4.addConstraint(Sketcher.Constraint("Equal", 42, 44))
sketch4.addConstraint(Sketcher.Constraint("Equal", 43, 45))
sketch4.addConstraint(Sketcher.Constraint("Equal", 44, 46))
sketch4.addConstraint(Sketcher.Constraint("Equal", 45, 47))
sketch4.addConstraint(Sketcher.Constraint("Equal", 46, 48))
sketch4.addConstraint(Sketcher.Constraint("Equal", 47, 49))
sketch4.addConstraint(Sketcher.Constraint("Equal", 48, 50))
sketch4.addConstraint(Sketcher.Constraint("Equal", 49, 51))
sketch4.addConstraint(Sketcher.Constraint("Equal", 50, 52))
sketch4.addConstraint(Sketcher.Constraint("Equal", 51, 53))
sketch4.addConstraint(Sketcher.Constraint("Equal", 52, 54))
sketch4.addConstraint(Sketcher.Constraint("Equal", 53, 55))
sketch4.addConstraint(Sketcher.Constraint("Equal", 54, 56))
sketch4.addConstraint(Sketcher.Constraint("Equal", 55, 57))
sketch4.addConstraint(Sketcher.Constraint("Equal", 56, 58))
sketch4.addConstraint(Sketcher.Constraint("Equal", 57, 59))
sketch4.addConstraint(Sketcher.Constraint("Equal", 58, 60))
sketch4.addConstraint(Sketcher.Constraint("Equal", 59, 61))
sketch4.addConstraint(Sketcher.Constraint("Equal", 60, 62))
sketch4.addConstraint(Sketcher.Constraint("Equal", 61, 63))
sketch4.addConstraint(Sketcher.Constraint("Equal", 62, 64))
sketch4.addConstraint(Sketcher.Constraint("Equal", 63, 65))
sketch4.addConstraint(Sketcher.Constraint("Equal", 64, 66))
sketch4.addConstraint(Sketcher.Constraint("Equal", 65, 67))
sketch4.addConstraint(Sketcher.Constraint("Equal", 66, 68))
sketch4.addConstraint(Sketcher.Constraint("Equal", 67, 69))
sketch4.addConstraint(Sketcher.Constraint("Equal", 69, 74))
sketch4.addConstraint(Sketcher.Constraint("Symmetric", 0, 3, 30, 3, -1, 1))
sketch4.addConstraint(Sketcher.Constraint("Symmetric", 2, 3, 32, 3, -1, 1))
sketch4.addConstraint(Sketcher.Constraint("Symmetric", 4, 3, 34, 3, -1, 1))
sketch4.addConstraint(Sketcher.Constraint("Symmetric", 6, 3, 36, 3, -1, 1))
sketch4.addConstraint(Sketcher.Constraint("Symmetric", 8, 3, 38, 3, -1, 1))
sketch4.addConstraint(Sketcher.Constraint("Symmetric", 10, 3, 40, 3, -1, 1))
sketch4.addConstraint(Sketcher.Constraint("Symmetric", 12, 3, 42, 3, -1, 1))
sketch4.addConstraint(Sketcher.Constraint("Symmetric", 16, 3, 46, 3, -1, 1))
sketch4.addConstraint(Sketcher.Constraint("Symmetric", 18, 3, 48, 3, -1, 1))
sketch4.addConstraint(Sketcher.Constraint("Symmetric", 20, 3, 50, 3, -1, 1))
sketch4.addConstraint(Sketcher.Constraint("Symmetric", 22, 3, 52, 3, -1, 1))
sketch4.addConstraint(Sketcher.Constraint("Symmetric", 24, 3, 54, 3, -1, 1))
sketch4.addConstraint(Sketcher.Constraint("Symmetric", 26, 3, 56, 3, -1, 1))
sketch4.addConstraint(Sketcher.Constraint("Symmetric", 28, 3, 58, 3, -1, 1))
sketch4.addConstraint(Sketcher.Constraint("Symmetric", 12, 3, 16, 3, -2))
sketch4.addConstraint(Sketcher.Constraint("Symmetric", 10, 3, 18, 3, -2))
sketch4.addConstraint(Sketcher.Constraint("Symmetric", 8, 3, 20, 3, -2))
sketch4.addConstraint(Sketcher.Constraint("Symmetric", 6, 3, 22, 3, -2))
sketch4.addConstraint(Sketcher.Constraint("Symmetric", 4, 3, 24, 3, -2))
sketch4.addConstraint(Sketcher.Constraint("Symmetric", 2, 3, 26, 3, -2))
sketch4.addConstraint(Sketcher.Constraint("Symmetric", 0, 3, 28, 3, -2))
sketch4.addConstraint(Sketcher.Constraint("Symmetric", 14, 3, 44, 3, -1))
sketch4.addConstraint(Sketcher.Constraint("Symmetric", 60, 3, 68, 3, -1))
sketch4.addConstraint(Sketcher.Constraint("Symmetric", 66, 3, 74, 3, -1))
sketch4.addConstraint(Sketcher.Constraint("PointOnObject", 62, 3, -1))
sketch4.addConstraint(Sketcher.Constraint("PointOnObject", 64, 3, -1))
sketch4.addConstraint(Sketcher.Constraint("Horizontal", 1, 3, 2, 3))
sketch4.addConstraint(Sketcher.Constraint("Horizontal", 3, 3, 4, 3))
sketch4.addConstraint(Sketcher.Constraint("Horizontal", 5, 3, 6, 3))
sketch4.addConstraint(Sketcher.Constraint("Horizontal", 7, 3, 8, 3))
sketch4.addConstraint(Sketcher.Constraint("Horizontal", 9, 3, 10, 3))
sketch4.addConstraint(Sketcher.Constraint("Horizontal", 11, 3, 12, 3))
sketch4.addConstraint(Sketcher.Constraint("Horizontal", 13, 3, 14, 3))
sketch4.addConstraint(Sketcher.Constraint("Horizontal", 67, 3, 68, 3))
sketch4.addConstraint(Sketcher.Constraint("Vertical", 61, 3, 62, 3))
sketch4.addConstraint(Sketcher.Constraint("Vertical", 65, 3, 66, 3))
sketch4.addConstraint(Sketcher.Constraint("Equal", 73, 70))
sketch4.addConstraint(Sketcher.Constraint("Diameter", 0, 2.0))
sketch4.addConstraint(Sketcher.Constraint("Diameter", 1, 1.5))
sketch4.addConstraint(Sketcher.Constraint("DistanceX", 71, 1, 71, 2, 2.0))
sketch4.addConstraint(Sketcher.Constraint("DistanceY", 0, 3, -1, 1, 7.25))
sketch4.addConstraint(Sketcher.Constraint("DistanceY", 60, 3, -1, 1, 2.54))
sketch4.addConstraint(Sketcher.Constraint("DistanceY", 70, 2, -1, 1, 1.54))
sketch4.addConstraint(Sketcher.Constraint("DistanceX", 60, 3, -1, 1, 18.37659))
sketch4.addConstraint(Sketcher.Constraint("DistanceX", 64, 3, -1, 1, 20.91659))
sketch4.addConstraint(Sketcher.Constraint("DistanceX", 70, 2, -1, 1, 21.91659))
sketch4.addConstraint(Sketcher.Constraint("DistanceX", 0, 3, -1, 1, 17.780867))
sketch4.addConstraint(Sketcher.Constraint("DistanceX", 2, 3, -1, 1, 15.240867))
sketch4.addConstraint(Sketcher.Constraint("DistanceX", 4, 3, -1, 1, 12.700867))
sketch4.addConstraint(Sketcher.Constraint("DistanceX", 6, 3, -1, 1, 10.160867))
sketch4.addConstraint(Sketcher.Constraint("DistanceX", 8, 3, -1, 1, 7.620867))
sketch4.addConstraint(Sketcher.Constraint("DistanceX", 10, 3, -1, 1, 5.080867))
sketch4.addConstraint(Sketcher.Constraint("DistanceX", 12, 3, -1, 1, 2.540867))
sketch4.addConstraint(Sketcher.Constraint("DistanceX", 14, 3, -1, 1, 0.000867))
pad3 = body.newObject("PartDesign::Pad", "Pad002")
pad3.Profile = sketch4
pad3.Length = 0.25
pad3.Reversed = True
body2 = doc.addObject("PartDesign::Body", "Body001")

sketch5 = body2.newObject("Sketcher::SketchObject", "Sketch004")
sketch5.AttachmentSupport = (doc.getObject("XZ_Plane001"), [""])
sketch5.MapMode = "FlatFace"
add_polygon(sketch5, [(15.094912, -3.75), (15.094912, 3.75), (25.094912, 3.75), (25.094912, -3.75)])
sketch5.addConstraint(Sketcher.Constraint("Vertical", 0))
sketch5.addConstraint(Sketcher.Constraint("Horizontal", 1))
sketch5.addConstraint(Sketcher.Constraint("Vertical", 2))
sketch5.addConstraint(Sketcher.Constraint("Horizontal", 3))
sketch5.addConstraint(Sketcher.Constraint("DistanceX", 1, 1, 1, 2, 10.0))
sketch5.addConstraint(Sketcher.Constraint("DistanceY", 0, 1, 0, 2, 7.5))
sketch5.addConstraint(Sketcher.Constraint("DistanceY", -1, 1, 0, 2, 3.75))
sketch5.addConstraint(Sketcher.Constraint("DistanceX", -1, 1, 0, 2, 15.094912))
pad4 = body2.newObject("PartDesign::Pad", "Pad003")
pad4.Profile = sketch5
pad4.Length = 5
pad4.Reversed = True

sketch6 = body2.newObject("Sketcher::SketchObject", "Sketch005")
sketch6.AttachmentSupport = (doc.getObject("YZ_Plane001"), [""])
sketch6.MapMode = "FlatFace"
sketch6.AttachmentOffset = App.Placement(App.Vector(0, 0, 25), App.Rotation())
add_polygon(sketch6, [(4, 2.75), (1, 2.75), (1, -2.75), (4, -2.75)])
sketch6.addConstraint(Sketcher.Constraint("Horizontal", 0))
sketch6.addConstraint(Sketcher.Constraint("Vertical", 1))
sketch6.addConstraint(Sketcher.Constraint("Horizontal", 2))
sketch6.addConstraint(Sketcher.Constraint("Vertical", 3))
sketch6.addConstraint(Sketcher.Constraint("DistanceX", 0, 2, 0, 1, 3.0))
sketch6.addConstraint(Sketcher.Constraint("DistanceY", 1, 2, 1, 1, 5.5))
sketch6.addConstraint(Sketcher.Constraint("DistanceX", -1, 1, 0, 2, 1.0))
sketch6.addConstraint(Sketcher.Constraint("DistanceY", -1, 1, 0, 2, 2.75))
pocket2 = body2.newObject("PartDesign::Pocket", "Pocket001")
pocket2.Profile = sketch6
pocket2.Type = "TwoLengths"
pocket2.Length = 1.094912
pocket2.Length2 = 7.5
pocket2.Reversed = True

sketch7 = body2.newObject("Sketcher::SketchObject", "Sketch006")
sketch7.AttachmentSupport = (doc.getObject("YZ_Plane001"), [""])
sketch7.MapMode = "FlatFace"
sketch7.AttachmentOffset = App.Placement(App.Vector(0, 0, 25), App.Rotation())
add_polygon(sketch7, [(1.5, 3.75), (0, 3.75), (0, 3.25), (1.5, 3.25)])
add_polygon(sketch7, [(1.5, -3.25), (0, -3.25), (0, -3.75), (1.5, -3.75)])
sketch7.addConstraint(Sketcher.Constraint("Horizontal", 0))
sketch7.addConstraint(Sketcher.Constraint("Vertical", 1))
sketch7.addConstraint(Sketcher.Constraint("Horizontal", 2))
sketch7.addConstraint(Sketcher.Constraint("Vertical", 3))
sketch7.addConstraint(Sketcher.Constraint("Horizontal", 4))
sketch7.addConstraint(Sketcher.Constraint("Vertical", 5))
sketch7.addConstraint(Sketcher.Constraint("Horizontal", 6))
sketch7.addConstraint(Sketcher.Constraint("Vertical", 7))
sketch7.addConstraint(Sketcher.Constraint("Symmetric", 1, 2, 4, 2, -1, 1))
sketch7.addConstraint(Sketcher.Constraint("Symmetric", 0, 2, 5, 2, -1))
sketch7.addConstraint(Sketcher.Constraint("Vertical", 3, 2, 6, 2))
sketch7.addConstraint(Sketcher.Constraint("DistanceX", 0, 2, 0, 1, 1.5))
sketch7.addConstraint(Sketcher.Constraint("DistanceY", 1, 2, 1, 1, 0.5))
sketch7.addConstraint(Sketcher.Constraint("DistanceY", 4, 2, 0, 2, 7.0))
pocket3 = body2.newObject("PartDesign::Pocket", "Pocket002")
pocket3.Profile = sketch7
pocket3.Type = "TwoLengths"
pocket3.Length = 1.094912
pocket3.Length2 = 5
pocket3.Reversed = True
body3 = doc.addObject("PartDesign::Body", "Body002")

sketch8 = body3.newObject("Sketcher::SketchObject", "Sketch007")
sketch8.AttachmentSupport = (doc.getObject("XZ_Plane002"), [""])
sketch8.MapMode = "FlatFace"
add_polygon(sketch8, [(7.594912, -4.601513), (2.993399, 0), (7.594912, 4.601513), (12.196426, 0)])
sketch8.addConstraint(Sketcher.Constraint("Symmetric", 1, 2, 3, 2, -1))
sketch8.addConstraint(Sketcher.Constraint("PointOnObject", 0, 2, -1))
sketch8.addConstraint(Sketcher.Constraint("PointOnObject", 2, 2, -1))
sketch8.addConstraint(Sketcher.Constraint("Perpendicular", 0, 1))
sketch8.addConstraint(Sketcher.Constraint("Perpendicular", 1, 2))
sketch8.addConstraint(Sketcher.Constraint("DistanceX", -1, 1, 0, 2, 2.993399))
sketch8.addConstraint(Sketcher.Constraint("Distance", 0, 6.507522))
pad5 = body3.newObject("PartDesign::Pad", "Pad004")
pad5.Profile = sketch8
pad5.Length = 1.5
pad5.Reversed = True
body4 = doc.addObject("PartDesign::Body", "Body003")

sketch9 = body4.newObject("Sketcher::SketchObject", "Sketch008")
sketch9.AttachmentSupport = (doc.getObject("XZ_Plane003"), [""])
sketch9.MapMode = "FlatFace"
add_polygon(sketch9, [(-7.644411, -2.5), (-7.644411, 2.5), (-6.144411, 2.5), (-6.144411, -2.5)])
sketch9.addConstraint(Sketcher.Constraint("Vertical", 0))
sketch9.addConstraint(Sketcher.Constraint("Horizontal", 1))
sketch9.addConstraint(Sketcher.Constraint("Vertical", 2))
sketch9.addConstraint(Sketcher.Constraint("Horizontal", 3))
sketch9.addConstraint(Sketcher.Constraint("DistanceY", 0, 1, 0, 2, 5.0))
sketch9.addConstraint(Sketcher.Constraint("DistanceX", 1, 1, 1, 2, 1.5))
sketch9.addConstraint(Sketcher.Constraint("DistanceY", -1, 1, 0, 2, 2.5))
sketch9.addConstraint(Sketcher.Constraint("DistanceX", 0, 2, -1, 1, 7.644411))
pad6 = body4.newObject("PartDesign::Pad", "Pad005")
pad6.Profile = sketch9
pad6.Length = 3
pad6.Reversed = True

doc.recompute()
